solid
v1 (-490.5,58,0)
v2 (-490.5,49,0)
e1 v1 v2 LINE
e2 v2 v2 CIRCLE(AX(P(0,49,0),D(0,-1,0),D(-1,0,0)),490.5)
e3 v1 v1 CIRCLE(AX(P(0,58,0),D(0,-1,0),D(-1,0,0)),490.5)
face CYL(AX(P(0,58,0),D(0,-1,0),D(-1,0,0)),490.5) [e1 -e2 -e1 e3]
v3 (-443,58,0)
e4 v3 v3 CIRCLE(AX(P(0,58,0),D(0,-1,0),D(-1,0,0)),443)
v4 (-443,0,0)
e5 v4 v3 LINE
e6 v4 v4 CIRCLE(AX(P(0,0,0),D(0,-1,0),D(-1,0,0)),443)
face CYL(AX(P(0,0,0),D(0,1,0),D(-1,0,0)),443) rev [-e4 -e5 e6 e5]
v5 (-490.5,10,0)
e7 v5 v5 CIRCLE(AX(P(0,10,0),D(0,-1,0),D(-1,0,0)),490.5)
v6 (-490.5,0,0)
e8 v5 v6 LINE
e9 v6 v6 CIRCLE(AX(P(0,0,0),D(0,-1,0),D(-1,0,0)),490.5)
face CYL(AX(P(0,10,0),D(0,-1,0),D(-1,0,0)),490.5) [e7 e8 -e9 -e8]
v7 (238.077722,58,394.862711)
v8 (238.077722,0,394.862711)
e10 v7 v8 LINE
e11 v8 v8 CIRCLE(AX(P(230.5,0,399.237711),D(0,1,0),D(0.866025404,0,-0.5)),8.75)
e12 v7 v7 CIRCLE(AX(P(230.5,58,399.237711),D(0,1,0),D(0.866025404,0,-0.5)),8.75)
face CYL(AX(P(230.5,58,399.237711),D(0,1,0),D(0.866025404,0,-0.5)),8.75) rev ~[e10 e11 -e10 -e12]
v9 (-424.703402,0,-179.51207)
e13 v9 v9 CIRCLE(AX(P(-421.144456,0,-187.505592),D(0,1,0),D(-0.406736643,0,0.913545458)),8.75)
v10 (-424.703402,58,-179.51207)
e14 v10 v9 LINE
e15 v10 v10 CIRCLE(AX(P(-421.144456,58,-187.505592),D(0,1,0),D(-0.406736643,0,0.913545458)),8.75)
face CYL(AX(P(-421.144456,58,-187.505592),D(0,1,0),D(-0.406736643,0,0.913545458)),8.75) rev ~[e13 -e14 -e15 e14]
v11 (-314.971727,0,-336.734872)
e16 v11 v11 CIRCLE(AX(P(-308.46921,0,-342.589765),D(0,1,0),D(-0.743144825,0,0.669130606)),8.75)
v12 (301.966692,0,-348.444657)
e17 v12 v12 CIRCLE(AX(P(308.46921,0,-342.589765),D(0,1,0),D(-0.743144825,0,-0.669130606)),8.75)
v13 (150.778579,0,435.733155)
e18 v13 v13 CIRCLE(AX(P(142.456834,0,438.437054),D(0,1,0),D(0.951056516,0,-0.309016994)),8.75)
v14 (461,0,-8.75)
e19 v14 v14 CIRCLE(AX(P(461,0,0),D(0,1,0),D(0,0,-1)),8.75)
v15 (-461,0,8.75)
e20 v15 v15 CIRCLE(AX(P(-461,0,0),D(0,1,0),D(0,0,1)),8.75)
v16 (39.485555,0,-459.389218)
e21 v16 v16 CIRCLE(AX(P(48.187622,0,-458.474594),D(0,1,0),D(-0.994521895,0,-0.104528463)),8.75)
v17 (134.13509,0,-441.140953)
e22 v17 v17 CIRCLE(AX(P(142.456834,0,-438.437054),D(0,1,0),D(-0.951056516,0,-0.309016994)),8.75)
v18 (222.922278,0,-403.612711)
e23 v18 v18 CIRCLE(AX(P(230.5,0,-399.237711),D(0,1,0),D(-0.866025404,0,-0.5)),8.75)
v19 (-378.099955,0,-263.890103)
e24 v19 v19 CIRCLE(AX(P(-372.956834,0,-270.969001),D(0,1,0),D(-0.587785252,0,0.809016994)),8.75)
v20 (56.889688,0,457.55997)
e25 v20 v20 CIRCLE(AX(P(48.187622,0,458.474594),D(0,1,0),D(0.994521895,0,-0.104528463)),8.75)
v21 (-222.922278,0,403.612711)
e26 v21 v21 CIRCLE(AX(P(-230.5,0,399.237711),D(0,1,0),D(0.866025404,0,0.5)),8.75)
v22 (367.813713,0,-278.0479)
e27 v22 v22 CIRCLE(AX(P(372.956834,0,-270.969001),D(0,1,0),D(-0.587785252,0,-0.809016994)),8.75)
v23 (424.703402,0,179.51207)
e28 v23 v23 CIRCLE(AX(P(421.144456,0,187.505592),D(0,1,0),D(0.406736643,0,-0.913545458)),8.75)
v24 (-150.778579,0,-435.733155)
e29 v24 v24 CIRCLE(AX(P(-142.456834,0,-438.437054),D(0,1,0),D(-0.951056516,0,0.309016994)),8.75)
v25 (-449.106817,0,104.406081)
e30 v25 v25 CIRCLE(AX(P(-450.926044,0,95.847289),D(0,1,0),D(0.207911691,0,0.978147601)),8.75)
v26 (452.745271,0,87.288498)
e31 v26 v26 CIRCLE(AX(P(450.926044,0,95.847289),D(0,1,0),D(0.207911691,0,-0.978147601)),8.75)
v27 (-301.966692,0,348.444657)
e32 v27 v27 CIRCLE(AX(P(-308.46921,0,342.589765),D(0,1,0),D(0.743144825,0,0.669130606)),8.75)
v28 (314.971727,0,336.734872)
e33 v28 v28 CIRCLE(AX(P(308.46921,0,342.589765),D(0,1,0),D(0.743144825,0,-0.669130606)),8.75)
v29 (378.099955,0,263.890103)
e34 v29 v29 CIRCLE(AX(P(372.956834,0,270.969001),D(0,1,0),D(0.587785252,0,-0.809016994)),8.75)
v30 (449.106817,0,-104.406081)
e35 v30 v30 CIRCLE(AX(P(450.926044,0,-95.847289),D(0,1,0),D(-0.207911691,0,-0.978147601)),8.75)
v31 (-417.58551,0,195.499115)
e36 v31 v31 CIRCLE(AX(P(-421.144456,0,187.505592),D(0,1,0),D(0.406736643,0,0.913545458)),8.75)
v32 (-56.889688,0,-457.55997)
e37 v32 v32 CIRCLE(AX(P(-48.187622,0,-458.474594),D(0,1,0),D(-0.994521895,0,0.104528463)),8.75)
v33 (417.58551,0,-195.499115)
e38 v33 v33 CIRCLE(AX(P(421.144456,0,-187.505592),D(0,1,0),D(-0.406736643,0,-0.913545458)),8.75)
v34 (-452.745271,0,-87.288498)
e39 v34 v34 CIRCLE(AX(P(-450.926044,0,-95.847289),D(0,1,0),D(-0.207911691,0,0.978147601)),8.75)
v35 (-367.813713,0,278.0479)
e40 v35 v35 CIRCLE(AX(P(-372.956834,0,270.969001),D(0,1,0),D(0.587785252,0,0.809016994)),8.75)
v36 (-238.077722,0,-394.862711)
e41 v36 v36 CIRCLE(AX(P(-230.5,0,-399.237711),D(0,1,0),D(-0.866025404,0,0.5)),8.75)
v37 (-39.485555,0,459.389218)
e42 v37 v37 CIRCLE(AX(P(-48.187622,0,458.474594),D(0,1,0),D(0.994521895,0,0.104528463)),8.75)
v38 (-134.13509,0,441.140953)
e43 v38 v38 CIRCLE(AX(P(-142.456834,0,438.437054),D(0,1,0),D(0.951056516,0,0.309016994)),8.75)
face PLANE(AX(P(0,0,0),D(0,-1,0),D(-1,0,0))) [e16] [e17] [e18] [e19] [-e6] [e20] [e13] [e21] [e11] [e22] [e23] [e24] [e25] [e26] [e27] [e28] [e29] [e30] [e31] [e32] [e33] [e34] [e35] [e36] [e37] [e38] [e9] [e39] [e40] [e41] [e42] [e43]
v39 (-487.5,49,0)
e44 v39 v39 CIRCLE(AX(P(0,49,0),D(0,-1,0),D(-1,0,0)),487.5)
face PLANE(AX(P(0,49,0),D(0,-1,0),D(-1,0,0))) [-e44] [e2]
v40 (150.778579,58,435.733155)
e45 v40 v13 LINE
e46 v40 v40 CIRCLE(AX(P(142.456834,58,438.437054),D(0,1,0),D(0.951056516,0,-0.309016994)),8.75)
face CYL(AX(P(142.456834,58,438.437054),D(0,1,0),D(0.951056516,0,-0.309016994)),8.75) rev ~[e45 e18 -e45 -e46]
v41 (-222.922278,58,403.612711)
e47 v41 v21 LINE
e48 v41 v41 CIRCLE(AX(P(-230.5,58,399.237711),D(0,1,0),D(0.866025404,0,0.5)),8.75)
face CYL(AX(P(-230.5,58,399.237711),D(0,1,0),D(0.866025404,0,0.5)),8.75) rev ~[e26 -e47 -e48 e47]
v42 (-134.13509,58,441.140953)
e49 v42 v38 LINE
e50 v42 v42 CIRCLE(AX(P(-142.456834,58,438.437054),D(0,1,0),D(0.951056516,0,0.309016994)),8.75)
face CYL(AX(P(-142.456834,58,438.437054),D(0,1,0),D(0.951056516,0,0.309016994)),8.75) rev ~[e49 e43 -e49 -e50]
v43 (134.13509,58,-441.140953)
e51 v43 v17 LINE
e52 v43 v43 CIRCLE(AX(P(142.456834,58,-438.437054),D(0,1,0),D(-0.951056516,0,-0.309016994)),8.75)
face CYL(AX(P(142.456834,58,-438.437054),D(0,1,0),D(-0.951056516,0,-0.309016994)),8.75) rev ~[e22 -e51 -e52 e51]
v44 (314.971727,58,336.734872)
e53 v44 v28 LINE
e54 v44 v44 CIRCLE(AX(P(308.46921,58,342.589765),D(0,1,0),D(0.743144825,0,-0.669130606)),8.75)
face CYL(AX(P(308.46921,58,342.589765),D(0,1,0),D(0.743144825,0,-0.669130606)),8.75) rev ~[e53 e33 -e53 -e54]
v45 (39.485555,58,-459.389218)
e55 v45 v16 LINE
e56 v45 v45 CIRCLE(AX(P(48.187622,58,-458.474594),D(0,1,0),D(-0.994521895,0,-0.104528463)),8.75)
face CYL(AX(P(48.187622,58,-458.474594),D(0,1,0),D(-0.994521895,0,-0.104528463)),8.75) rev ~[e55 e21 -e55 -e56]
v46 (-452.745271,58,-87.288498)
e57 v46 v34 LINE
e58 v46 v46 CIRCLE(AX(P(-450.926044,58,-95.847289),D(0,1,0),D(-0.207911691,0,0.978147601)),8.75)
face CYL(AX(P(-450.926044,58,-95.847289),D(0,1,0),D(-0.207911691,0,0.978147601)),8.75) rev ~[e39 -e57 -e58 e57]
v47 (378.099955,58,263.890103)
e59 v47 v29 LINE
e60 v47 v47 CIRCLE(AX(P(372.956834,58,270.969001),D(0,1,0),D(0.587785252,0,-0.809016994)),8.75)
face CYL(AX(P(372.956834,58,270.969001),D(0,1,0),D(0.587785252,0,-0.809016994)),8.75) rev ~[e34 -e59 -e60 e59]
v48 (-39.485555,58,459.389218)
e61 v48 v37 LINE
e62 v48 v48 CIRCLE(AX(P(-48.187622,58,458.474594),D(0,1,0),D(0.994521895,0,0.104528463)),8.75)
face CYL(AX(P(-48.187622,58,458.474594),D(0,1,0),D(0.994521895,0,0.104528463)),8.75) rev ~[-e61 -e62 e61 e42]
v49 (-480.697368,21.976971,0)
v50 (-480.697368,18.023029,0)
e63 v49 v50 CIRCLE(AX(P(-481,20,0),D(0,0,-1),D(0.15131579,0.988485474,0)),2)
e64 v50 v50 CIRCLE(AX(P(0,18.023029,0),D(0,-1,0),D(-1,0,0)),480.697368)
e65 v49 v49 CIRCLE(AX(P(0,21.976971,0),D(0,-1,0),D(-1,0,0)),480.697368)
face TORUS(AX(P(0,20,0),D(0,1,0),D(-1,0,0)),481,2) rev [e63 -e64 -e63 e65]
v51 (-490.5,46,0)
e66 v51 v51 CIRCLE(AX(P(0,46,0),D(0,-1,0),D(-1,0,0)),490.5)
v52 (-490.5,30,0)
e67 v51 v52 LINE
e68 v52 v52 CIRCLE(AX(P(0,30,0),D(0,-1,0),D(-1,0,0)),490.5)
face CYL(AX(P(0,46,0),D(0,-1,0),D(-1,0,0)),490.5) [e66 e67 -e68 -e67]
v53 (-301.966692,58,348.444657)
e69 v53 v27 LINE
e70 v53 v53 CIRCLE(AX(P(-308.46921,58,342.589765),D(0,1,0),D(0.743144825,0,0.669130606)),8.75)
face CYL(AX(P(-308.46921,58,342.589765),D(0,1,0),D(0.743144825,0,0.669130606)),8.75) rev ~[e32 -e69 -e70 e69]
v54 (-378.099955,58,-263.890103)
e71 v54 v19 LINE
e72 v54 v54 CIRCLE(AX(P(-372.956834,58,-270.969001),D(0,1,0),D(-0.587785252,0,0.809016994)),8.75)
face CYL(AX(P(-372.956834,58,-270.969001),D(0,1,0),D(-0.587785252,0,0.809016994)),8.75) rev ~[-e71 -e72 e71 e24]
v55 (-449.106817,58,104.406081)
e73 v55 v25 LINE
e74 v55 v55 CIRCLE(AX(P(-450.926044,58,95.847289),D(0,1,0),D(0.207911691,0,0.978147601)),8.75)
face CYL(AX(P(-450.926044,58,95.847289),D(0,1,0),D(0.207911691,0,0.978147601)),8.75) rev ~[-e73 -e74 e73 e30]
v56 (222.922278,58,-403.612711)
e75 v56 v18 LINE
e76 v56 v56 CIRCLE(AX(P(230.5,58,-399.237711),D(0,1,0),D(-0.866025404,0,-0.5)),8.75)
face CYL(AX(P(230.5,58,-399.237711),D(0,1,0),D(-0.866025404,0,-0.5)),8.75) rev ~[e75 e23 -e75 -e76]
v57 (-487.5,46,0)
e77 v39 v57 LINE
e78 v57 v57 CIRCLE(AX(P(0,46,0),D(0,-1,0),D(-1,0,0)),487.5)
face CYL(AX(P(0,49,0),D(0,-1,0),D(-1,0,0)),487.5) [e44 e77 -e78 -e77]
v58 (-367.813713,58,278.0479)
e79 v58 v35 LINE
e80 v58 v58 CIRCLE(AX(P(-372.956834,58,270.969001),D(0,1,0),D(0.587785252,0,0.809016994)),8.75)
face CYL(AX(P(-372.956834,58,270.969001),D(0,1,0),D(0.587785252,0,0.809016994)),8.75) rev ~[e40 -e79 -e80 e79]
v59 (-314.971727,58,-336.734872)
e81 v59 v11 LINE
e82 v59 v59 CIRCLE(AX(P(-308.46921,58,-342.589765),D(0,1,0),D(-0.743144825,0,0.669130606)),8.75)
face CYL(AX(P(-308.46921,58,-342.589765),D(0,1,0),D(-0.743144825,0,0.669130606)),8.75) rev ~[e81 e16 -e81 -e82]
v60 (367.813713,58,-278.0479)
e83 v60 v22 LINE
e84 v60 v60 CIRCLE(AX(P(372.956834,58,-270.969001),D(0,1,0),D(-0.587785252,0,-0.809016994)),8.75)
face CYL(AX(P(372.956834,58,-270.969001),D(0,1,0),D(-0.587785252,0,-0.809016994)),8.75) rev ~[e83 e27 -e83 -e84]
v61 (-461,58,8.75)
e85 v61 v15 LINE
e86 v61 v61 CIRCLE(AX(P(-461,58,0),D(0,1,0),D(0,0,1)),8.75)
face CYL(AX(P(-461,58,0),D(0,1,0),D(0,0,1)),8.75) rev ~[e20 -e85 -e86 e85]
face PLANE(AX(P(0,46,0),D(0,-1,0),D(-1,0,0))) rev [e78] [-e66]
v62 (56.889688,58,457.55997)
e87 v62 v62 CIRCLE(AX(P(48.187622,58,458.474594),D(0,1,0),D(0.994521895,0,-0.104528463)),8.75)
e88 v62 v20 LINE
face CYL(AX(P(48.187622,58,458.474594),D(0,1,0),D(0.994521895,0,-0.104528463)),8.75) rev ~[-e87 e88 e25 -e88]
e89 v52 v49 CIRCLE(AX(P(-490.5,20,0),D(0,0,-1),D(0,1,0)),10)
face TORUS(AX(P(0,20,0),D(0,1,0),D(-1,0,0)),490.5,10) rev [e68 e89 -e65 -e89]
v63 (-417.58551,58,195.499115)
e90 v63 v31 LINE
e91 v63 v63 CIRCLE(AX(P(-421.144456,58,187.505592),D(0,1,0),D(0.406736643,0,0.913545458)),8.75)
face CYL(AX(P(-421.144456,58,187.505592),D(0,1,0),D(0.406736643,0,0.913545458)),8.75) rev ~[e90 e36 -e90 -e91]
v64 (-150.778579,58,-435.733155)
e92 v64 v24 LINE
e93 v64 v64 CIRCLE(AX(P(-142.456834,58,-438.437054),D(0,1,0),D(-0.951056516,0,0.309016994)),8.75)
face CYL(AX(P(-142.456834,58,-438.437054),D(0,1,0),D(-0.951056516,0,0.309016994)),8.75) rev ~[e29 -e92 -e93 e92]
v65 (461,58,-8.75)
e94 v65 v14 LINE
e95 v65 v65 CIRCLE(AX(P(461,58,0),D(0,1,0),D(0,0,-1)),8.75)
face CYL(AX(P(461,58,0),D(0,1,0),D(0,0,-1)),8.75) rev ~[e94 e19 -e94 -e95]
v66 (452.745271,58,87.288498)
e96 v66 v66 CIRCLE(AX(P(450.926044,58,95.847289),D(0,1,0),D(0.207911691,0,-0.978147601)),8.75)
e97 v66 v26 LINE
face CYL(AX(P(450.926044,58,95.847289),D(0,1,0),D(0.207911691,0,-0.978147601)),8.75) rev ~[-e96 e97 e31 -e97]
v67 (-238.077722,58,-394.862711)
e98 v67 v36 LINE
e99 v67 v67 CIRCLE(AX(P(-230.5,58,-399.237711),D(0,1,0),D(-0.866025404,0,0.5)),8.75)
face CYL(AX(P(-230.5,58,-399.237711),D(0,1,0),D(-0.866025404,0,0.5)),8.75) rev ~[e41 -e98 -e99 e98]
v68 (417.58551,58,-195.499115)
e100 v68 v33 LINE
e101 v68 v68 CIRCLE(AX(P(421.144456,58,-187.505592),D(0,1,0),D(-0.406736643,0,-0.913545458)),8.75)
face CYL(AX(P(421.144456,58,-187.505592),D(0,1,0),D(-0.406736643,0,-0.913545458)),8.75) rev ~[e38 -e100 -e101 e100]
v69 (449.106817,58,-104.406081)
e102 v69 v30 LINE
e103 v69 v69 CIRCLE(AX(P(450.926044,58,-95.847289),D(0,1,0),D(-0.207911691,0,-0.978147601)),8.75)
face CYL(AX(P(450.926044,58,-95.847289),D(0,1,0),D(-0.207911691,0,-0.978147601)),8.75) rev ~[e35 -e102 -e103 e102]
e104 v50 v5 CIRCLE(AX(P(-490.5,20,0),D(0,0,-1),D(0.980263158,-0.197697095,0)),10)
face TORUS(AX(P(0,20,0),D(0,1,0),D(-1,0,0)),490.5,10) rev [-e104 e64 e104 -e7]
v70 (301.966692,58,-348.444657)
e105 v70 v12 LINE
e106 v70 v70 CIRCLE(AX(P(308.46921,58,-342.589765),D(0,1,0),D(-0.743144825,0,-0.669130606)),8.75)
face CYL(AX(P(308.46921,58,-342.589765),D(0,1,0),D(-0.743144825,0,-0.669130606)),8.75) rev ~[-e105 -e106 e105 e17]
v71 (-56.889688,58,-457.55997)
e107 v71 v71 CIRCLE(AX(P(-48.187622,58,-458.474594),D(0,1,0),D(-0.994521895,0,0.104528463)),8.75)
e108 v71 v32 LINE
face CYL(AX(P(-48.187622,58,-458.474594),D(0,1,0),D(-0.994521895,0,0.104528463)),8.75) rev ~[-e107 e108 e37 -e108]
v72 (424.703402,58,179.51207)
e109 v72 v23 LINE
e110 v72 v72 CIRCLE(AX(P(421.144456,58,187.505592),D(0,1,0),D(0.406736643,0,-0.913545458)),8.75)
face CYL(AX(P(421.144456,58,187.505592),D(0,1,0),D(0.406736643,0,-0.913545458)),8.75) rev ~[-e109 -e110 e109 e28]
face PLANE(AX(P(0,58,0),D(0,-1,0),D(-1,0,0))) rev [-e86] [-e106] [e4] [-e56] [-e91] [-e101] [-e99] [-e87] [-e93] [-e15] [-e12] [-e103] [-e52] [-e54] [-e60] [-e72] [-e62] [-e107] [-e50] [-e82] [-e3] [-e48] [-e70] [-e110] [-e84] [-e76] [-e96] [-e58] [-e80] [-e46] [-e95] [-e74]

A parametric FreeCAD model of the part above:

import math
import FreeCAD as App
import Part
import Sketcher
from FreeCAD import Vector
Q = App.Units.Quantity

doc = App.newDocument("Part")
body = doc.addObject("PartDesign::Body", "Body")

# Sketch on XY plane
sketch1 = doc.addObject("Sketcher::SketchObject", "Sketch")
body.addObject(sketch1)
sketch1.AttachmentSupport = (doc.XY_Plane, [""])
sketch1.MapMode = "FlatFace"
sketch1.addGeometry(Part.LineSegment(Vector(-490.5, 58, 0), Vector(-490.5, 49, 0)), False)
sketch1.addGeometry(Part.LineSegment(Vector(-490.5, 49, 0), Vector(-487.5, 49, 0)), False)
sketch1.addGeometry(Part.LineSegment(Vector(-487.5, 49, 0), Vector(-487.5, 46, 0)), False)
sketch1.addGeometry(Part.LineSegment(Vector(-487.5, 46, 0), Vector(-490.5, 46, 0)), False)
sketch1.addGeometry(Part.LineSegment(Vector(-490.5, 46, 0), Vector(-490.5, 30, 0)), False)
sketch1.addGeometry(Part.ArcOfCircle(Part.Circle(Vector(-490.5, 20, 0), Vector(0, 0, 1), 10), math.radians(11), math.radians(90)), False)
sketch1.addGeometry(Part.ArcOfCircle(Part.Circle(Vector(-481, 20, 0), Vector(0, 0, 1), 2), math.radians(-81), math.radians(81)), False)
sketch1.addGeometry(Part.ArcOfCircle(Part.Circle(Vector(-490.5, 20, 0), Vector(0, 0, 1), 10), math.radians(-90), math.radians(-11)), False)
sketch1.addGeometry(Part.LineSegment(Vector(-490.5, 10, 0), Vector(-490.5, 0, 0)), False)
sketch1.addGeometry(Part.LineSegment(Vector(-490.5, 0, 0), Vector(-443, 0, 0)), False)
sketch1.addGeometry(Part.LineSegment(Vector(-443, 0, 0), Vector(-443, 58, 0)), False)
sketch1.addGeometry(Part.LineSegment(Vector(-443, 58, 0), Vector(-490.5, 58, 0)), False)
sketch1.addConstraint(Sketcher.Constraint("Coincident", 0, 2, 1, 1))
sketch1.addConstraint(Sketcher.Constraint("Coincident", 1, 2, 2, 1))
sketch1.addConstraint(Sketcher.Constraint("Coincident", 2, 2, 3, 1))
sketch1.addConstraint(Sketcher.Constraint("Coincident", 3, 2, 4, 1))
sketch1.addConstraint(Sketcher.Constraint("Coincident", 4, 2, 5, 2))
sketch1.addConstraint(Sketcher.Constraint("Coincident", 5, 1, 6, 2))
sketch1.addConstraint(Sketcher.Constraint("Coincident", 6, 1, 7, 2))
sketch1.addConstraint(Sketcher.Constraint("Coincident", 7, 1, 8, 1))
sketch1.addConstraint(Sketcher.Constraint("Coincident", 8, 2, 9, 1))
sketch1.addConstraint(Sketcher.Constraint("Coincident", 9, 2, 10, 1))
sketch1.addConstraint(Sketcher.Constraint("Coincident", 10, 2, 11, 1))
sketch1.addConstraint(Sketcher.Constraint("Coincident", 11, 2, 0, 1))
sketch1.addConstraint(Sketcher.Constraint("Vertical", 0))
sketch1.addConstraint(Sketcher.Constraint("Horizontal", 1))
sketch1.addConstraint(Sketcher.Constraint("Vertical", 2))
sketch1.addConstraint(Sketcher.Constraint("Horizontal", 3))
sketch1.addConstraint(Sketcher.Constraint("Vertical", 4))
sketch1.addConstraint(Sketcher.Constraint("Vertical", 8))
sketch1.addConstraint(Sketcher.Constraint("Horizontal", 9))
sketch1.addConstraint(Sketcher.Constraint("Vertical", 10))
sketch1.addConstraint(Sketcher.Constraint("Horizontal", 11))
sketch1.addConstraint(Sketcher.Constraint("Coincident", 7, 3, 5, 3))
sketch1.addConstraint(Sketcher.Constraint("Equal", 5, 7))
sketch1.addConstraint(Sketcher.Constraint("PointOnObject", 8, 2, -1))
sketch1.addConstraint(Sketcher.Constraint("Horizontal", 5, 3, 6, 3))
sketch1.addConstraint(Sketcher.Constraint("Vertical", 7, 3, 0, 2))
sketch1.addConstraint(Sketcher.Constraint("Vertical", 0, 2, 3, 2))
sketch1.addConstraint(Sketcher.Constraint("Vertical", 4, 2, 7, 1))
sketch1.addConstraint(Sketcher.Constraint("Equal", 3, 2))
sketch1.addConstraint(Sketcher.Constraint("Radius", 5, Q("10 mm")))
sketch1.addConstraint(Sketcher.Constraint("Radius", 6, Q("2 mm")))
sketch1.addConstraint(Sketcher.Constraint("DistanceX", 1, 1, 1, 2, Q("3 mm")))
sketch1.addConstraint(Sketcher.Constraint("DistanceY", 0, 2, 0, 1, Q("9 mm")))
sketch1.addConstraint(Sketcher.Constraint("DistanceY", 4, 2, 4, 1, Q("16 mm")))
sketch1.addConstraint(Sketcher.Constraint("DistanceY", 8, 2, 8, 1, Q("10 mm")))
sketch1.addConstraint(Sketcher.Constraint("DistanceX", 9, 1, 9, 2, Q("47.5 mm")))
sketch1.addConstraint(Sketcher.Constraint("DistanceX", 6, 3, -1, 1, Q("481 mm")))
sketch1.addConstraint(Sketcher.Constraint("DistanceX", 9, 2, -1, 1, Q("443 mm")))
revolution = doc.addObject("PartDesign::Revolution", "Revolution")
body.addObject(revolution)
revolution.Profile = sketch1
revolution.ReferenceAxis = (sketch1, ["V_Axis"])
revolution.Angle = 360

# Sketch on XZ plane
sketch2 = doc.addObject("Sketcher::SketchObject", "Sketch001")
body.addObject(sketch2)
sketch2.AttachmentSupport = (doc.XZ_Plane, [""])
sketch2.MapMode = "FlatFace"
sketch2.AttachmentOffset = App.Placement(Vector(0, 0, -58), App.Rotation())
sketch2.addGeometry(Part.Circle(Vector(-461, 0, 0), Vector(0, 0, 1), 9), False)
sketch2.addConstraint(Sketcher.Constraint("PointOnObject", 0, 3, -1))
sketch2.addConstraint(Sketcher.Constraint("Diameter", 0, Q("17.5 mm")))
sketch2.addConstraint(Sketcher.Constraint("DistanceX", 0, 3, -1, 1, Q("461 mm")))
pocket1 = doc.addObject("PartDesign::Pocket", "Pocket")
body.addObject(pocket1)
pocket1.Profile = sketch2
pocket1.Type = "ThroughAll"
pocket1.Reversed = True
doc.recompute()

polarpattern = doc.addObject("PartDesign::PolarPattern", "PolarPattern")
body.addObject(polarpattern)
polarpattern.Originals = [pocket1]
polarpattern.Axis = (doc.Y_Axis, [""])
polarpattern.Angle = 360
polarpattern.Occurrences = 30
body.Tip = polarpattern

doc.recompute()
